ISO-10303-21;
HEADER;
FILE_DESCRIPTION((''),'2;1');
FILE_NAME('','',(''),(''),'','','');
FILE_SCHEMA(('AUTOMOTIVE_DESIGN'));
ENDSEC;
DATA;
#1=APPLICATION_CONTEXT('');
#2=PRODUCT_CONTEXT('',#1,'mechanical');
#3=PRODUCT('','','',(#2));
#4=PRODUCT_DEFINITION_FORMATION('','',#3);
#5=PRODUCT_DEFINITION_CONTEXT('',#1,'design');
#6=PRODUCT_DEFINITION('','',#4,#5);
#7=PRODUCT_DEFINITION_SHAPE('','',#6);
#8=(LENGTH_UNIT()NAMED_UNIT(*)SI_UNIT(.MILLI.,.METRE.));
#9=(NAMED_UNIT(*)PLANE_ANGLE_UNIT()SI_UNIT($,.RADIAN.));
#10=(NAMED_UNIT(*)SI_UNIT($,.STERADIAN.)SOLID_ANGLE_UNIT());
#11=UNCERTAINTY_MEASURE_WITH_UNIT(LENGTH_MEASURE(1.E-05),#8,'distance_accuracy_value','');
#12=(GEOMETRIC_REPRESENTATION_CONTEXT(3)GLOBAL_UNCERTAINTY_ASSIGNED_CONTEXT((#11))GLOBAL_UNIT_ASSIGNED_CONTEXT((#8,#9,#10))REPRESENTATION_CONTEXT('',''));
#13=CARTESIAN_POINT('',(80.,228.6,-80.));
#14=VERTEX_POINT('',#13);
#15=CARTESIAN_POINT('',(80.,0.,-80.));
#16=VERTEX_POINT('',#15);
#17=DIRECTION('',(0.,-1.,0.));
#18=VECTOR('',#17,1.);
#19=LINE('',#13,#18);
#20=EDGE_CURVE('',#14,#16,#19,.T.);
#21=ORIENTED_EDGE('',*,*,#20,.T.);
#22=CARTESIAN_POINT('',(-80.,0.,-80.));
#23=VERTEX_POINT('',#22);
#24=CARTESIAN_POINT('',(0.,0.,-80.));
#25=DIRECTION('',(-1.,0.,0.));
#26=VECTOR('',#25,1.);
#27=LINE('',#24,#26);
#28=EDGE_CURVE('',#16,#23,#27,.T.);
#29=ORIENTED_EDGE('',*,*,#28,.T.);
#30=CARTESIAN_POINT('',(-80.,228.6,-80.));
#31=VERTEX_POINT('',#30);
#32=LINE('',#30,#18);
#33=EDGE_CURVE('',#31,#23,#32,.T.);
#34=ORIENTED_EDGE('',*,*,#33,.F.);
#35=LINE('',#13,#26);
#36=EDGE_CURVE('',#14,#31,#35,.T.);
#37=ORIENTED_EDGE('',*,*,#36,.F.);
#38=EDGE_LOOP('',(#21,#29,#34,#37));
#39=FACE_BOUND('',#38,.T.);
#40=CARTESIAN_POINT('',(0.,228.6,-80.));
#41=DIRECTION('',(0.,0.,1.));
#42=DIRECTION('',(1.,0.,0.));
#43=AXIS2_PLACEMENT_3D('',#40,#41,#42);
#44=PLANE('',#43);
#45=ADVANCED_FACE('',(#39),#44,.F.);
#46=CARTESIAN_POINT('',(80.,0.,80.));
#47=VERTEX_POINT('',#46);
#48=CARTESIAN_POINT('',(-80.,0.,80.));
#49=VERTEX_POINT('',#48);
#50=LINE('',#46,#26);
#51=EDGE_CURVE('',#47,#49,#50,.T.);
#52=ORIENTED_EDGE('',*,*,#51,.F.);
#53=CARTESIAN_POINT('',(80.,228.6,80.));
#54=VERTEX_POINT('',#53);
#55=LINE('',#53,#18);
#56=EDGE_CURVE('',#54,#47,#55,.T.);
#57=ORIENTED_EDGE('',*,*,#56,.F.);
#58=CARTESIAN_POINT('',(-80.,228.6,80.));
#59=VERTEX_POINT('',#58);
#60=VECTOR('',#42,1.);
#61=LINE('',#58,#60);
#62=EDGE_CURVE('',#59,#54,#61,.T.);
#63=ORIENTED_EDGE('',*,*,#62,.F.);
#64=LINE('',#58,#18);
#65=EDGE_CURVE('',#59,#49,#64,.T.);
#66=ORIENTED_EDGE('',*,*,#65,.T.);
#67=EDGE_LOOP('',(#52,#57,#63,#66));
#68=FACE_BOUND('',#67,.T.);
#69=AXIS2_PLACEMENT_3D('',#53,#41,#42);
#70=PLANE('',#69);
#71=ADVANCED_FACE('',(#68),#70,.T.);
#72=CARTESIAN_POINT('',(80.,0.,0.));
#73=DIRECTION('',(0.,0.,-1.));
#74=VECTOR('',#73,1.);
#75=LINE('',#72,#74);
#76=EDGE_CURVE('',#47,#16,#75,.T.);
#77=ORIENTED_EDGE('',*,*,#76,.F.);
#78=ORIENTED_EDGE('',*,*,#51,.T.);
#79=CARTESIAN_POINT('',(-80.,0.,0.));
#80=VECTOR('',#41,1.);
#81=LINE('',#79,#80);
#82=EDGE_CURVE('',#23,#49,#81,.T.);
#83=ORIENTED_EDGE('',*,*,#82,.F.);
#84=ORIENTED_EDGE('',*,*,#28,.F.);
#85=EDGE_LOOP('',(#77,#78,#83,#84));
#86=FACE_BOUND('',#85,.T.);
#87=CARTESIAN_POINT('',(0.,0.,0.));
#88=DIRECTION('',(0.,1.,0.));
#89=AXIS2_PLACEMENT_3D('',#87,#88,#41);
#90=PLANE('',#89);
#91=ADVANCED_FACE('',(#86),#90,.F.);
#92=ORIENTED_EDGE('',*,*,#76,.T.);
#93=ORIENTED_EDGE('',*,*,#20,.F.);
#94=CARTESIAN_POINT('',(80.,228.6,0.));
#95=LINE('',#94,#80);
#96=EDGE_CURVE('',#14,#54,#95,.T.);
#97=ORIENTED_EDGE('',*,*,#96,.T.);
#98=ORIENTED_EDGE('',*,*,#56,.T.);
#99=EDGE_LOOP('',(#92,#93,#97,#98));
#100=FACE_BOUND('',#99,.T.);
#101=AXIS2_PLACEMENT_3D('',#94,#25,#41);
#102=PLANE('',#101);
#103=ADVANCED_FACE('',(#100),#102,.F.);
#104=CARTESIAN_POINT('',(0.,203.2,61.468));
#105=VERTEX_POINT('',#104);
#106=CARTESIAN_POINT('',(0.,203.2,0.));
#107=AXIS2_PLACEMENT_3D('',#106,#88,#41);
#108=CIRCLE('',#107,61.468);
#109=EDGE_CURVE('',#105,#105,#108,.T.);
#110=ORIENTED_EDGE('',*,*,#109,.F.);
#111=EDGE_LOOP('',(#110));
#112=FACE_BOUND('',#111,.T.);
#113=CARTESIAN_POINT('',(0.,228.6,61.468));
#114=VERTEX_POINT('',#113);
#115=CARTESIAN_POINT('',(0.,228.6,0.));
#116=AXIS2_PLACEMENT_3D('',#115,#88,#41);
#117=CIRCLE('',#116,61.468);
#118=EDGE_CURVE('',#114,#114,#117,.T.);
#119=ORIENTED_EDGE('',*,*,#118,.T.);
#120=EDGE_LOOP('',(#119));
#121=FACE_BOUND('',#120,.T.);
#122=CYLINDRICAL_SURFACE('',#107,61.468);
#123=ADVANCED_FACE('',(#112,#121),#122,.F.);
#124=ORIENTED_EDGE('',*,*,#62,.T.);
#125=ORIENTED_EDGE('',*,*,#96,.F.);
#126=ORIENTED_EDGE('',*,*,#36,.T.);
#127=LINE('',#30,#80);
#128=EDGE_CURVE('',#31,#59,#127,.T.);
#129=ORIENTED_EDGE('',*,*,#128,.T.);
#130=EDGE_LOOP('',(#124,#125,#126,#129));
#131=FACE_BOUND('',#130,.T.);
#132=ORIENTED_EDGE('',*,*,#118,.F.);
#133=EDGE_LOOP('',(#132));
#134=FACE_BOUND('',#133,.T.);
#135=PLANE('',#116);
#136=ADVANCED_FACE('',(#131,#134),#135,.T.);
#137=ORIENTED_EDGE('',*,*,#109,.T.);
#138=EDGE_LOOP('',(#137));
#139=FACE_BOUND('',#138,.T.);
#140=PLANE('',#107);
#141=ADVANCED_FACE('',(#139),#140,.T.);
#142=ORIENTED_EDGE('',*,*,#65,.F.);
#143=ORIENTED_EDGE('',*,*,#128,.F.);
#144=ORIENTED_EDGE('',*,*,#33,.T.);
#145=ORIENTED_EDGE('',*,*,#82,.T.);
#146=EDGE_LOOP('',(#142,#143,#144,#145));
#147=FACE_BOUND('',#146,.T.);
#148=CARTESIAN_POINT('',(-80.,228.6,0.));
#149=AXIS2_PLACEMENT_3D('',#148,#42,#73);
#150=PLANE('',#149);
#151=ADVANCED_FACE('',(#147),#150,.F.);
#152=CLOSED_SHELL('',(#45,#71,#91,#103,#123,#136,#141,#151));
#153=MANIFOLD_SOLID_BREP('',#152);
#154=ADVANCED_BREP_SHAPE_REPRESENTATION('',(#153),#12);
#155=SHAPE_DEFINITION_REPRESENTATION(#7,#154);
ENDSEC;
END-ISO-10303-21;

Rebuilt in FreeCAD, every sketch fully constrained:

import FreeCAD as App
import Part
import Sketcher
Q = App.Units.Quantity

doc = App.newDocument("Part")
params = doc.addObject("Spreadsheet::Sheet", "Params")
for row, (alias, value) in enumerate([
    ("pad1_length", "9 in"),
    ("sketch2_diameter", "4.84 in"),
    ("pocket1_length", "1 in"),
], start=1):
    params.set(f"A{row}", alias)
    params.set(f"B{row}", "=" + value)
    params.setAlias(f"B{row}", alias)

body = doc.addObject("PartDesign::Body", "Body")

# Sketch on XZ plane
sketch1 = doc.addObject("Sketcher::SketchObject", "Sketch")
body.addObject(sketch1)
sketch1.AttachmentSupport = (doc.XZ_Plane, [""])
sketch1.MapMode = "FlatFace"
sketch1.addGeometry(Part.LineSegment(App.Vector(-80, -80, 0), App.Vector(-80, 80, 0)), False)
sketch1.addGeometry(Part.LineSegment(App.Vector(-80, 80, 0), App.Vector(80, 80, 0)), False)
sketch1.addGeometry(Part.LineSegment(App.Vector(80, 80, 0), App.Vector(80, -80, 0)), False)
sketch1.addGeometry(Part.LineSegment(App.Vector(80, -80, 0), App.Vector(-80, -80, 0)), False)
sketch1.addConstraint(Sketcher.Constraint("Coincident", 0, 2, 1, 1))
sketch1.addConstraint(Sketcher.Constraint("Coincident", 1, 2, 2, 1))
sketch1.addConstraint(Sketcher.Constraint("Coincident", 2, 2, 3, 1))
sketch1.addConstraint(Sketcher.Constraint("Coincident", 3, 2, 0, 1))
sketch1.addConstraint(Sketcher.Constraint("Vertical", 0))
sketch1.addConstraint(Sketcher.Constraint("Horizontal", 1))
sketch1.addConstraint(Sketcher.Constraint("Vertical", 2))
sketch1.addConstraint(Sketcher.Constraint("Horizontal", 3))
sketch1.addConstraint(Sketcher.Constraint("Symmetric", 0, 2, 2, 2, -1, 1))
sketch1.addConstraint(Sketcher.Constraint("Equal", 3, 0))
sketch1.addConstraint(Sketcher.Constraint("DistanceX", 1, 1, 1, 2, 160.0))
pad1 = doc.addObject("PartDesign::Pad", "Pad")
body.addObject(pad1)
pad1.Profile = sketch1
pad1.setExpression("Length", "Params.pad1_length")
pad1.Reversed = True

# Sketch on XZ plane
sketch2 = doc.addObject("Sketcher::SketchObject", "Sketch001")
body.addObject(sketch2)
sketch2.AttachmentSupport = (doc.XZ_Plane, [""])
sketch2.MapMode = "FlatFace"
sketch2.AttachmentOffset = App.Placement(App.Vector(0, 0, -9 * 25.4), App.Rotation())
sketch2.addGeometry(Part.Circle(App.Vector(0, 0, 0), App.Vector(0, 0, 1), 61), False)
sketch2.addConstraint(Sketcher.Constraint("Coincident", 0, 3, -1, 1))
sketch2.addConstraint(Sketcher.Constraint("Diameter", 0, Q("4.84 in")))
sketch2.setExpression("Constraints[1]", "Params.sketch2_diameter")
pocket1 = doc.addObject("PartDesign::Pocket", "Pocket")
body.addObject(pocket1)
pocket1.Profile = sketch2
pocket1.setExpression("Length", "Params.pocket1_length")
pocket1.Reversed = True

doc.recompute()
